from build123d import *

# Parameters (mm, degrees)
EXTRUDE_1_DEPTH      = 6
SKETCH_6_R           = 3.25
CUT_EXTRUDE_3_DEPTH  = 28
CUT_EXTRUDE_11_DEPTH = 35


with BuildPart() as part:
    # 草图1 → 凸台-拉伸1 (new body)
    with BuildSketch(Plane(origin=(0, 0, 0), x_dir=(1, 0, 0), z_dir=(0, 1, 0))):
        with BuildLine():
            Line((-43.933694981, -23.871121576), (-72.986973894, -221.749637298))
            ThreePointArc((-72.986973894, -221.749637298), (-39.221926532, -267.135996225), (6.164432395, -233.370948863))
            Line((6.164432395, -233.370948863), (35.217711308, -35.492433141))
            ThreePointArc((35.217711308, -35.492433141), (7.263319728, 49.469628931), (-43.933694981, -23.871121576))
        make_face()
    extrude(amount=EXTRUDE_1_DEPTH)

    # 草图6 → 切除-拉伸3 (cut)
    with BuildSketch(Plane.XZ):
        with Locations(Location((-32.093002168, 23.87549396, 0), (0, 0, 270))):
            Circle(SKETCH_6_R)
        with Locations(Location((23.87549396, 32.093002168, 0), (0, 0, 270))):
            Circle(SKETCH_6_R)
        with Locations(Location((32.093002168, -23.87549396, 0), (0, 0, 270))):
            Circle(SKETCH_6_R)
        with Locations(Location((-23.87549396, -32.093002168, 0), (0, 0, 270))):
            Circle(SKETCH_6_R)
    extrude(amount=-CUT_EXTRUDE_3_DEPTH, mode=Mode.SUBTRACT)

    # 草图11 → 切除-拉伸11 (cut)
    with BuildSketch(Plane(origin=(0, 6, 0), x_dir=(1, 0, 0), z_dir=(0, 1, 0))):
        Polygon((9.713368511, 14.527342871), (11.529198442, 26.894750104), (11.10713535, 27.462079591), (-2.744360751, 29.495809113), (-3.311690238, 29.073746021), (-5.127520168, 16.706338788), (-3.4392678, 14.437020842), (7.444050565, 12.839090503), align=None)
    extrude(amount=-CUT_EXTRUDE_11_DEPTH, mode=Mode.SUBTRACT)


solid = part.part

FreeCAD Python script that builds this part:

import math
import FreeCAD as App
import Part
import Sketcher
Q = App.Units.Quantity


def add_polygon(sketch, points):
    """Adds a closed chain of lines whose ends are joined by coincident constraints."""
    first, n = sketch.GeometryCount, len(points)
    for a, b in zip(points, points[1:] + points[:1]):
        sketch.addGeometry(Part.LineSegment(App.Vector(*a, 0), App.Vector(*b, 0)), False)
    for i in range(n):
        sketch.addConstraint(Sketcher.Constraint("Coincident", first + i, 2, first + (i + 1) % n, 1))

doc = App.newDocument("Part")
body = doc.addObject("PartDesign::Body", "Body")

# Sketch on XZ plane
sketch1 = body.newObject("Sketcher::SketchObject", "Sketch")
sketch1.AttachmentSupport = (doc.getObject("XZ_Plane"), [""])
sketch1.MapMode = "FlatFace"
sketch1.addGeometry(Part.LineSegment(App.Vector(-44, 24, 0), App.Vector(-73, 222, 0)), False)
sketch1.addGeometry(Part.ArcOfCircle(Part.Circle(App.Vector(-33, 228, 0), App.Vector(0, 0, 1), 40), math.radians(8), math.radians(188)), False)
sketch1.addGeometry(Part.LineSegment(App.Vector(6, 233, 0), App.Vector(35, 35, 0)), False)
sketch1.addGeometry(Part.ArcOfCircle(Part.Circle(App.Vector(0, 0, 0), App.Vector(0, 0, 1), 50), math.radians(151), math.radians(405)), False)
sketch1.addConstraint(Sketcher.Constraint("Tangent", 0, 2, 1, 2))
sketch1.addConstraint(Sketcher.Constraint("Tangent", 1, 1, 2, 1))
sketch1.addConstraint(Sketcher.Constraint("Coincident", 2, 2, 3, 2))
sketch1.addConstraint(Sketcher.Constraint("Coincident", 3, 1, 0, 1))
sketch1.addConstraint(Sketcher.Constraint("Coincident", 3, 3, -1, 1))
sketch1.addConstraint(Sketcher.Constraint("Parallel", 0, 2))
sketch1.addConstraint(Sketcher.Constraint("Equal", 0, 2))
sketch1.addConstraint(Sketcher.Constraint("Radius", 1, Q("40 mm")))
sketch1.addConstraint(Sketcher.Constraint("Radius", 3, Q("50 mm")))
sketch1.addConstraint(Sketcher.Constraint("Distance", 0, Q("200 mm")))
sketch1.addConstraint(Sketcher.Constraint("DistanceX", 1, 3, -1, 1, Q("33.411271 mm")))
pad1 = body.newObject("PartDesign::Pad", "Pad")
pad1.Profile = sketch1
pad1.Length = 6
pad1.Reversed = True

# Sketch on XZ plane
sketch2 = body.newObject("Sketcher::SketchObject", "Sketch001")
sketch2.AttachmentSupport = (doc.getObject("XZ_Plane"), [""])
sketch2.MapMode = "FlatFace"
sketch2.addGeometry(Part.Circle(App.Vector(-32.1, 23.9, 0), App.Vector(0, 0, 1), 3.2), False)
sketch2.addGeometry(Part.Circle(App.Vector(23.9, 32.1, 0), App.Vector(0, 0, 1), 3.2), False)
sketch2.addGeometry(Part.Circle(App.Vector(32.1, -23.9, 0), App.Vector(0, 0, 1), 3.2), False)
sketch2.addGeometry(Part.Circle(App.Vector(-23.9, -32.1, 0), App.Vector(0, 0, 1), 3.2), False)
sketch2.addConstraint(Sketcher.Constraint("Equal", 0, 1))
sketch2.addConstraint(Sketcher.Constraint("Equal", 1, 2))
sketch2.addConstraint(Sketcher.Constraint("Equal", 2, 3))
sketch2.addConstraint(Sketcher.Constraint("Symmetric", 0, 3, 2, 3, -1, 1))
sketch2.addConstraint(Sketcher.Constraint("Symmetric", 1, 3, 3, 3, -1, 1))
sketch2.addConstraint(Sketcher.Constraint("Diameter", 0, Q("6.5 mm")))
sketch2.addConstraint(Sketcher.Constraint("DistanceY", 0, 3, 1, 3, Q("8.217508 mm")))
sketch2.addConstraint(Sketcher.Constraint("DistanceX", 1, 3, 2, 3, Q("8.217508 mm")))
sketch2.addConstraint(Sketcher.Constraint("DistanceX", 0, 3, -1, 1, Q("32.093002 mm")))
sketch2.addConstraint(Sketcher.Constraint("DistanceY", -1, 1, 0, 3, Q("23.875494 mm")))
pocket1 = body.newObject("PartDesign::Pocket", "Pocket")
pocket1.Profile = sketch2
pocket1.Length = 28

# Sketch on XZ plane
sketch3 = body.newObject("Sketcher::SketchObject", "Sketch002")
sketch3.AttachmentSupport = (doc.getObject("XZ_Plane"), [""])
sketch3.MapMode = "FlatFace"
sketch3.AttachmentOffset = App.Placement(App.Vector(0, 0, -6), App.Rotation())
add_polygon(sketch3, [(9.7, -14.5), (11.5, -26.9), (11.1, -27.5), (-2.7, -29.5), (-3.3, -29.1), (-5.1, -16.7), (-3.4, -14.4), (7.4, -12.8)])  # lines 0-7
sketch3.addConstraint(Sketcher.Constraint("Perpendicular", 0, 2))
sketch3.addConstraint(Sketcher.Constraint("Perpendicular", 1, 3))
sketch3.addConstraint(Sketcher.Constraint("Perpendicular", 2, 4))
sketch3.addConstraint(Sketcher.Constraint("Perpendicular", 3, 5))
sketch3.addConstraint(Sketcher.Constraint("Perpendicular", 4, 6))
sketch3.addConstraint(Sketcher.Constraint("Perpendicular", 5, 7))
sketch3.addConstraint(Sketcher.Constraint("Equal", 1, 3))
sketch3.addConstraint(Sketcher.Constraint("Equal", 0, 4))
sketch3.addConstraint(Sketcher.Constraint("Equal", 5, 7))
sketch3.addConstraint(Sketcher.Constraint("Distance", 2, Q("14 mm")))
sketch3.addConstraint(Sketcher.Constraint("Distance", 6, Q("11 mm")))
sketch3.addConstraint(Sketcher.Constraint("Distance", 0, Q("12.5 mm")))
sketch3.addConstraint(Sketcher.Constraint("DistanceX", -1, 1, 0, 2, Q("11.529198 mm")))
sketch3.addConstraint(Sketcher.Constraint("DistanceY", 0, 2, -1, 1, Q("26.89475 mm")))
sketch3.addConstraint(Sketcher.Constraint("DistanceY", 1, 2, -1, 1, Q("27.46208 mm")))
sketch3.addConstraint(Sketcher.Constraint("DistanceX", 2, 2, -1, 1, Q("2.744361 mm")))
pocket2 = body.newObject("PartDesign::Pocket", "Pocket001")
pocket2.Profile = sketch3
pocket2.Length = 35
pocket2.Reversed = True

doc.recompute()
